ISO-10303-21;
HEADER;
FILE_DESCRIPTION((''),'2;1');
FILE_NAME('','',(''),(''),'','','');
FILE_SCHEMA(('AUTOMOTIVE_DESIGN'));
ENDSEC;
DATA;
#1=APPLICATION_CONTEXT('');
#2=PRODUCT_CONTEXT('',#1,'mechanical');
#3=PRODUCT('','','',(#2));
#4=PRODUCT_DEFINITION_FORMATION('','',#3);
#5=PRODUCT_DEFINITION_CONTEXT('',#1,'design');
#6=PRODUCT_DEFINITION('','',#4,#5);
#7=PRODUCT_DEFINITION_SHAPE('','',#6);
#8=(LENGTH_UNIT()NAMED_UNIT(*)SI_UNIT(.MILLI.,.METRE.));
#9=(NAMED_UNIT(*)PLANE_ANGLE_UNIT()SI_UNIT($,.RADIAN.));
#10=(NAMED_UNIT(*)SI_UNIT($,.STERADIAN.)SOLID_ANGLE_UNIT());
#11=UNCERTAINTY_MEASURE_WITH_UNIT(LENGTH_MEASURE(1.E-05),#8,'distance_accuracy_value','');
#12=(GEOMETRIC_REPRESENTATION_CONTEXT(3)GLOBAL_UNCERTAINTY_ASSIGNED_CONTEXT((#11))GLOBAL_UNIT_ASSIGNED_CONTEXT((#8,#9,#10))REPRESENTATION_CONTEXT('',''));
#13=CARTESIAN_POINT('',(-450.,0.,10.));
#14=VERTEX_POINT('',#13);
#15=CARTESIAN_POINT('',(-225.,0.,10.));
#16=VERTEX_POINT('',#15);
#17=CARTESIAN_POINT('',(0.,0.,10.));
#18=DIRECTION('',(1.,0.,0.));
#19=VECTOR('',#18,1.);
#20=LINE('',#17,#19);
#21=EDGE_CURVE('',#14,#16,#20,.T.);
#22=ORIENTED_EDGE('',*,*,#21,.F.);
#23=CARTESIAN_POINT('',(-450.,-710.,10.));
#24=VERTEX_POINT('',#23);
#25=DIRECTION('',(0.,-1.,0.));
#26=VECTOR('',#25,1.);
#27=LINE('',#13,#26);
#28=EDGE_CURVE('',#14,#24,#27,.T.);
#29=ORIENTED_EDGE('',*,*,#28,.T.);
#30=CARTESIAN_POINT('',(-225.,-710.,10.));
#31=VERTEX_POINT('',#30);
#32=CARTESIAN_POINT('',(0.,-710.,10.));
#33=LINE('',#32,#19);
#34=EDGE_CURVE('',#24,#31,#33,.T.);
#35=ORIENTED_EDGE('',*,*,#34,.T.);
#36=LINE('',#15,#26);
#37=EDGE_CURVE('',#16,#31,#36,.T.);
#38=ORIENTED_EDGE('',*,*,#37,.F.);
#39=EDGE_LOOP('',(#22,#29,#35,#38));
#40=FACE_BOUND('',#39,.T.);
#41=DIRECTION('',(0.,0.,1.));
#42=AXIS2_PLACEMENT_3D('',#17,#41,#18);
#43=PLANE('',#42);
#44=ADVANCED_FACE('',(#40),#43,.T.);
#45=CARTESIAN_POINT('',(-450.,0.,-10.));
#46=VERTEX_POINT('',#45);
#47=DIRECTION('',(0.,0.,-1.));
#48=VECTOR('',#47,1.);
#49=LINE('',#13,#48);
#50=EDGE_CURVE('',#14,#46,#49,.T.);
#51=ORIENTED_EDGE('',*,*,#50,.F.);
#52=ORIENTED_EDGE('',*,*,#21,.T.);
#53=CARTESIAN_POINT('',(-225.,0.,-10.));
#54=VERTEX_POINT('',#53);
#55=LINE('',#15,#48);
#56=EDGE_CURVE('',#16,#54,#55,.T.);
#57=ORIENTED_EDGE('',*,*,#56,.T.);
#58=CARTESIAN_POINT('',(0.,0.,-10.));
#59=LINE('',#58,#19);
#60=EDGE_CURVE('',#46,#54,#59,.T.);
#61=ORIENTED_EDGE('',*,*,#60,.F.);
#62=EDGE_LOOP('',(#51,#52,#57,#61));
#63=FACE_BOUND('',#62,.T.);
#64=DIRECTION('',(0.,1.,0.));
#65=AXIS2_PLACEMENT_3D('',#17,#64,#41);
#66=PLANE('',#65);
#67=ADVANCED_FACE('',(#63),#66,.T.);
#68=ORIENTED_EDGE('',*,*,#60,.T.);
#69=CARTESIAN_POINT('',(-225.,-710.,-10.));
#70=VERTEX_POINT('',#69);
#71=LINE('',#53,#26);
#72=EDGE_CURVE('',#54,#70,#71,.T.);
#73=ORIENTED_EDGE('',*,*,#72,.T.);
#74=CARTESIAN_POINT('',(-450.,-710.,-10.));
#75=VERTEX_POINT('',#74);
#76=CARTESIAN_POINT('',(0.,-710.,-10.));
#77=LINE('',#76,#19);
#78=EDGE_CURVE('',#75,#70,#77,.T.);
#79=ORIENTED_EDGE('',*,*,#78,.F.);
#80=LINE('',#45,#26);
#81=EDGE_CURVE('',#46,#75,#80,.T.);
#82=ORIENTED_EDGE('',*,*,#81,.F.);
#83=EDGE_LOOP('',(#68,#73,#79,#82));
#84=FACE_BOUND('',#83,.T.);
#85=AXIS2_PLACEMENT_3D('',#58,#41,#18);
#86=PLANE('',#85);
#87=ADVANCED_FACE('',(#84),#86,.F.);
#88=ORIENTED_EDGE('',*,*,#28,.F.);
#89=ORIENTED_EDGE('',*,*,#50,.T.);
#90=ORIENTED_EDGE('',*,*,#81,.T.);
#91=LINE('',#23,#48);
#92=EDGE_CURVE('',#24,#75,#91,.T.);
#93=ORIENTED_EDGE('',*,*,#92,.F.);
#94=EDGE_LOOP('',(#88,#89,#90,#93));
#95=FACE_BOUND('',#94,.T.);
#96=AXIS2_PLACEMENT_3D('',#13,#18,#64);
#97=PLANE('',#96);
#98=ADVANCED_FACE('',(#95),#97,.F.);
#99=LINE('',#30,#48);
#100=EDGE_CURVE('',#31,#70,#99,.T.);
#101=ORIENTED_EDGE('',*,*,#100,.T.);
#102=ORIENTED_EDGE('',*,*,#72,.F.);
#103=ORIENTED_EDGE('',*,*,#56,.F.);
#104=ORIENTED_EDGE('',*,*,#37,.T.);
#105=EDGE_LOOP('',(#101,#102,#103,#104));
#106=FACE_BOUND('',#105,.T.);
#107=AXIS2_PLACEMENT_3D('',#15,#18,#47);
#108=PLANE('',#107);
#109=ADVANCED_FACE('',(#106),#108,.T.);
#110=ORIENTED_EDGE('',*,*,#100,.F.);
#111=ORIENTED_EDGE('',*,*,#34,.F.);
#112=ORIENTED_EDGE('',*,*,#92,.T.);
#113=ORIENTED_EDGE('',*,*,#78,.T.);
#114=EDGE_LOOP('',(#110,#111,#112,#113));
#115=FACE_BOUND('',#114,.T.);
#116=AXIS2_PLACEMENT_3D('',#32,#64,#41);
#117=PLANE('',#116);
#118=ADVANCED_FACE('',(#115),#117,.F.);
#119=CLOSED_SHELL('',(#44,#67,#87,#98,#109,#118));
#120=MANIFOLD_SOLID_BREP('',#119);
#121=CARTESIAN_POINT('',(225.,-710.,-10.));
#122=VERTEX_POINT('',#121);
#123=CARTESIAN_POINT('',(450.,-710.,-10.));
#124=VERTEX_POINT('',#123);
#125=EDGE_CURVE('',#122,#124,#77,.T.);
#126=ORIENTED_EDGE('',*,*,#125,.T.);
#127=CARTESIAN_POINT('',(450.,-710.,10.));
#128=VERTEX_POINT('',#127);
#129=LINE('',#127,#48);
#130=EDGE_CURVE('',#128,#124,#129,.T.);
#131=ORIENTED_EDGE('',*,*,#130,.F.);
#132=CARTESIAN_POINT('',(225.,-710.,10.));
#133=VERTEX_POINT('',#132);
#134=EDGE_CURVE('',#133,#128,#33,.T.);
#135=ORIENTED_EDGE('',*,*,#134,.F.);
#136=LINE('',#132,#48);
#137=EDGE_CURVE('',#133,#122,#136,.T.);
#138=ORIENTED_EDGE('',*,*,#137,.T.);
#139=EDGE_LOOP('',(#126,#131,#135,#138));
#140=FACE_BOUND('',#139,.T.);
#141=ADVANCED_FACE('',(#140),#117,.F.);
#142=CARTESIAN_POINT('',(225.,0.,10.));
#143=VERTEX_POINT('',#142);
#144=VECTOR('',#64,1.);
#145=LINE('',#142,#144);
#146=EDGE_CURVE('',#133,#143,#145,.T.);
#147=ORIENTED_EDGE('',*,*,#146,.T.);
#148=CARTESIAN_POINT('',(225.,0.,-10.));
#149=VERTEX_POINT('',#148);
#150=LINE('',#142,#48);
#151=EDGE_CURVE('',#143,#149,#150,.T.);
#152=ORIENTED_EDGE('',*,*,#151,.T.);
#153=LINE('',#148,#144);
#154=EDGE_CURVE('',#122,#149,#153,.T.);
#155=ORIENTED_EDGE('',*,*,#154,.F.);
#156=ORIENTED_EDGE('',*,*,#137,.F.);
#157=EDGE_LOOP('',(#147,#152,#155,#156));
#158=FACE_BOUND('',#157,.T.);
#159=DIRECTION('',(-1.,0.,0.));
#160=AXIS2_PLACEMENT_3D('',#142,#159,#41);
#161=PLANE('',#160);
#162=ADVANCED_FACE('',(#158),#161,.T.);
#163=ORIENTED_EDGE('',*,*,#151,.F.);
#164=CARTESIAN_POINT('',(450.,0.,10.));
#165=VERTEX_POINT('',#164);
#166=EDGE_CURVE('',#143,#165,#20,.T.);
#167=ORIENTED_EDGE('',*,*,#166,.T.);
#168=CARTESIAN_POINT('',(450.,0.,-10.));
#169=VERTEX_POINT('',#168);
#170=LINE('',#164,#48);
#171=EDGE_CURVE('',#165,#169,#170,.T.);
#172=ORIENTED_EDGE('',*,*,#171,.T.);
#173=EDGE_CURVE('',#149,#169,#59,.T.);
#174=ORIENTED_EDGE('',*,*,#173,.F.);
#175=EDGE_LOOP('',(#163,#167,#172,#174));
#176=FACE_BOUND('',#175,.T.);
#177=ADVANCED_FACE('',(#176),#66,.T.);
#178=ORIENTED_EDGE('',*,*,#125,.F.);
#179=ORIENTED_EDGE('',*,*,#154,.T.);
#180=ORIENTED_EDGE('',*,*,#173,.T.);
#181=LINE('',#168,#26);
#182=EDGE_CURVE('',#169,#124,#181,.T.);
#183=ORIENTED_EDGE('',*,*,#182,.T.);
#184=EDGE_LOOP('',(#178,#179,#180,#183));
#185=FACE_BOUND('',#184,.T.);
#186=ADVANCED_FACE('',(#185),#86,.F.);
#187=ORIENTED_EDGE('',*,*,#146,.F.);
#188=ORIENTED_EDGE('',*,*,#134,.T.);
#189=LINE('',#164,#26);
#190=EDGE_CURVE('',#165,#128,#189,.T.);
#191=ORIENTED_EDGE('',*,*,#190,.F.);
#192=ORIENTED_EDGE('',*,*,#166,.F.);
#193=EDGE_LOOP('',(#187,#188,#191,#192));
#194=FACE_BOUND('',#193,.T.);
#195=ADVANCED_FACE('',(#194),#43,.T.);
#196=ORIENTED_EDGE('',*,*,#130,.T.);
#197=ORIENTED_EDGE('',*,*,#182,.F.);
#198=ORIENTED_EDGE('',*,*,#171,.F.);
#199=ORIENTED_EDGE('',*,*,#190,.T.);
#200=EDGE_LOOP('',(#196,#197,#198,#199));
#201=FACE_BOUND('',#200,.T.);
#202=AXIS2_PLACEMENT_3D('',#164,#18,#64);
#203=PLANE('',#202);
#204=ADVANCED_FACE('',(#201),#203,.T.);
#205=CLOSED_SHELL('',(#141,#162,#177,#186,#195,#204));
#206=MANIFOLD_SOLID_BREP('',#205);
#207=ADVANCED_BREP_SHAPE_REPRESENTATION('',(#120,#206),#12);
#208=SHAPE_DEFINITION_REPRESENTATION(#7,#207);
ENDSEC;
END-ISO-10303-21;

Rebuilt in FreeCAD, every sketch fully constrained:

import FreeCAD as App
import Part
import Sketcher
from FreeCAD import Vector
Q = App.Units.Quantity

doc = App.newDocument("Part")
body = doc.addObject("PartDesign::Body", "Body")

# Sketch on XY plane
sketch1 = body.newObject("Sketcher::SketchObject", "Sketch")
sketch1.AttachmentSupport = (doc.getObject("XY_Plane"), [""])
sketch1.MapMode = "FlatFace"
sketch1.addGeometry(Part.LineSegment(Vector(-450, 0, 0), Vector(-450, -710, 0)), False)
sketch1.addGeometry(Part.LineSegment(Vector(-450, -710, 0), Vector(-225, -710, 0)), False)
sketch1.addGeometry(Part.LineSegment(Vector(-225, -710, 0), Vector(-225, 0, 0)), False)
sketch1.addGeometry(Part.LineSegment(Vector(-225, 0, 0), Vector(-450, 0, 0)), False)
sketch1.addConstraint(Sketcher.Constraint("Coincident", 0, 2, 1, 1))
sketch1.addConstraint(Sketcher.Constraint("Coincident", 1, 2, 2, 1))
sketch1.addConstraint(Sketcher.Constraint("Coincident", 2, 2, 3, 1))
sketch1.addConstraint(Sketcher.Constraint("Coincident", 3, 2, 0, 1))
sketch1.addConstraint(Sketcher.Constraint("Vertical", 0))
sketch1.addConstraint(Sketcher.Constraint("Horizontal", 1))
sketch1.addConstraint(Sketcher.Constraint("Vertical", 2))
sketch1.addConstraint(Sketcher.Constraint("Horizontal", 3))
sketch1.addConstraint(Sketcher.Constraint("PointOnObject", 2, 2, -1))
sketch1.addConstraint(Sketcher.Constraint("DistanceX", 1, 1, 1, 2, Q("225 mm")))
sketch1.addConstraint(Sketcher.Constraint("DistanceY", 0, 2, 0, 1, Q("710 mm")))
sketch1.addConstraint(Sketcher.Constraint("DistanceX", 0, 2, -1, 1, Q("450 mm")))
pad1 = body.newObject("PartDesign::Pad", "Pad")
pad1.Profile = sketch1
pad1.Length = 20
pad1.Midplane = True
body2 = doc.addObject("PartDesign::Body", "Body001")

# Sketch on XY plane
sketch2 = body2.newObject("Sketcher::SketchObject", "Sketch001")
sketch2.AttachmentSupport = (doc.getObject("XY_Plane001"), [""])
sketch2.MapMode = "FlatFace"
sketch2.addGeometry(Part.LineSegment(Vector(225, 0, 0), Vector(225, -710, 0)), False)
sketch2.addGeometry(Part.LineSegment(Vector(225, -710, 0), Vector(450, -710, 0)), False)
sketch2.addGeometry(Part.LineSegment(Vector(450, -710, 0), Vector(450, 0, 0)), False)
sketch2.addGeometry(Part.LineSegment(Vector(450, 0, 0), Vector(225, 0, 0)), False)
sketch2.addConstraint(Sketcher.Constraint("Coincident", 0, 2, 1, 1))
sketch2.addConstraint(Sketcher.Constraint("Coincident", 1, 2, 2, 1))
sketch2.addConstraint(Sketcher.Constraint("Coincident", 2, 2, 3, 1))
sketch2.addConstraint(Sketcher.Constraint("Coincident", 3, 2, 0, 1))
sketch2.addConstraint(Sketcher.Constraint("Vertical", 0))
sketch2.addConstraint(Sketcher.Constraint("Horizontal", 1))
sketch2.addConstraint(Sketcher.Constraint("Vertical", 2))
sketch2.addConstraint(Sketcher.Constraint("Horizontal", 3))
sketch2.addConstraint(Sketcher.Constraint("PointOnObject", 2, 2, -1))
sketch2.addConstraint(Sketcher.Constraint("DistanceX", 1, 1, 1, 2, Q("225 mm")))
sketch2.addConstraint(Sketcher.Constraint("DistanceY", 0, 2, 0, 1, Q("710 mm")))
sketch2.addConstraint(Sketcher.Constraint("DistanceX", -1, 1, 0, 2, Q("225 mm")))
pad2 = body2.newObject("PartDesign::Pad", "Pad001")
pad2.Profile = sketch2
pad2.Length = 20
pad2.Midplane = True

doc.recompute()
